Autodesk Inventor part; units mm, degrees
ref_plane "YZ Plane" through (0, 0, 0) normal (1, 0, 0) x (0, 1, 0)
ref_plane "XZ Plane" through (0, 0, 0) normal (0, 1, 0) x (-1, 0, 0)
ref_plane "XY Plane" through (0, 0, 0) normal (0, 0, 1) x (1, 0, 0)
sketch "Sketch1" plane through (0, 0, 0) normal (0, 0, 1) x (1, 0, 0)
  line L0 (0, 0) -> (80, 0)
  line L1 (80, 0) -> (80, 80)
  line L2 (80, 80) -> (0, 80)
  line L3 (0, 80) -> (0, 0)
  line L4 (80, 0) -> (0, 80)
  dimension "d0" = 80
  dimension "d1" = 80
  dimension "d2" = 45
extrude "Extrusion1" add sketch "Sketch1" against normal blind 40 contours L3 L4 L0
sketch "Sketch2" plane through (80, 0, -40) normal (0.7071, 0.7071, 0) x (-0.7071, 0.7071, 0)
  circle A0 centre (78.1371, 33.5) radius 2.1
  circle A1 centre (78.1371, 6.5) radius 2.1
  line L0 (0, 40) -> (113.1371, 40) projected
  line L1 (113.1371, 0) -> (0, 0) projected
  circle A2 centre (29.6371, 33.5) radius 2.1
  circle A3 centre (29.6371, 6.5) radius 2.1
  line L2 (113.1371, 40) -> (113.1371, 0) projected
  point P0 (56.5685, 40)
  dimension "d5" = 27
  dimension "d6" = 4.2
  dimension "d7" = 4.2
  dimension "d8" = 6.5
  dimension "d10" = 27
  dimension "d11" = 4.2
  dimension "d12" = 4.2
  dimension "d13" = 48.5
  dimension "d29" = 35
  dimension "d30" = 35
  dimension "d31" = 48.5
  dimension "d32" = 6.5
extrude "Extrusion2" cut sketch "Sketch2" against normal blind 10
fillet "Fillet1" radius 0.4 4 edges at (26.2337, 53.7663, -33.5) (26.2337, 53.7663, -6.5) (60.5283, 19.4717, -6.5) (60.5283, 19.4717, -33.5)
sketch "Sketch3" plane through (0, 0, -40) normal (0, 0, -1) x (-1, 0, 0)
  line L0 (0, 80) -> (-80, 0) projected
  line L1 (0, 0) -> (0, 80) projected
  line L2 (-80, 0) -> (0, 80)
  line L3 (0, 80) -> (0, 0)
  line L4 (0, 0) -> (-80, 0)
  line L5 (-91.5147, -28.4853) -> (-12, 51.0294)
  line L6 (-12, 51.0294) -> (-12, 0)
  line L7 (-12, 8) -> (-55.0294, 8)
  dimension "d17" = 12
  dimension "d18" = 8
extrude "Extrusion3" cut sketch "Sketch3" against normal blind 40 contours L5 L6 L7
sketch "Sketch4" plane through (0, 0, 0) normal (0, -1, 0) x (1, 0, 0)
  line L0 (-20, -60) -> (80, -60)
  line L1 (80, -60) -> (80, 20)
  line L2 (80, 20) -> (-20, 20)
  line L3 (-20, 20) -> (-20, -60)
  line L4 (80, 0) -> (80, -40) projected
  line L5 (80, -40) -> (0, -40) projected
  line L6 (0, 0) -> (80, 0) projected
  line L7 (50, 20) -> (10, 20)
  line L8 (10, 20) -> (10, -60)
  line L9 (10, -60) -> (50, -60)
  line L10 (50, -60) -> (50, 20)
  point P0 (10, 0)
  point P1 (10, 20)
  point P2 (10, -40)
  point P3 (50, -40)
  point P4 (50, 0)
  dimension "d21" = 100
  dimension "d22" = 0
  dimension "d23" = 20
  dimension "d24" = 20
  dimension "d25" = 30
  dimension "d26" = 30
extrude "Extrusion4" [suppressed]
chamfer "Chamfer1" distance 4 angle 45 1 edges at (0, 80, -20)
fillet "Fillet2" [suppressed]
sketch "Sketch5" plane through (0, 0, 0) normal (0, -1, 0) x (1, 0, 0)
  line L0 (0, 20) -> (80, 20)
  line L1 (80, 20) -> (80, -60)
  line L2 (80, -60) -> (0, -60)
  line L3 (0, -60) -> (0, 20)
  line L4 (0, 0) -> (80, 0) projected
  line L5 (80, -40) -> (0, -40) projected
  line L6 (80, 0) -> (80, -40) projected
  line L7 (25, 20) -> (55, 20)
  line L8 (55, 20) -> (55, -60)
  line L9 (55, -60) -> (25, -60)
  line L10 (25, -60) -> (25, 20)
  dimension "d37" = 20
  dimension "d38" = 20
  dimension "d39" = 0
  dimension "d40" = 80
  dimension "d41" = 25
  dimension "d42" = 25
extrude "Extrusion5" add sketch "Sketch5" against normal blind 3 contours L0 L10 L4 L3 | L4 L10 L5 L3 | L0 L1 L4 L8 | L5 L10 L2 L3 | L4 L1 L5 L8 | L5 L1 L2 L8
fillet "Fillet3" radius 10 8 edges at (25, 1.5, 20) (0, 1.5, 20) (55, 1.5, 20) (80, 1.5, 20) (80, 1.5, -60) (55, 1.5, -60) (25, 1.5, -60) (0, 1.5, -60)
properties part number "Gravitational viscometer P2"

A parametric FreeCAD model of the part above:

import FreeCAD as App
import Part
import Sketcher
from FreeCAD import Vector
Q = App.Units.Quantity


def edges_at(feature, points):
    """Names of the edges that pass closest to the given points."""
    edges = feature.Shape.Edges
    near = lambda p: min(range(len(edges)), key=lambda i: edges[i].distToShape(Part.Vertex(*p))[0])
    return sorted({f"Edge{near(p) + 1}" for p in points})


def add_polygon(sketch, points):
    """Adds a closed chain of lines whose ends are joined by coincident constraints."""
    first, n = sketch.GeometryCount, len(points)
    for a, b in zip(points, points[1:] + points[:1]):
        sketch.addGeometry(Part.LineSegment(App.Vector(*a, 0), App.Vector(*b, 0)), False)
    for i in range(n):
        sketch.addConstraint(Sketcher.Constraint("Coincident", first + i, 2, first + (i + 1) % n, 1))

doc = App.newDocument("Part")
params = doc.addObject("Spreadsheet::Sheet", "Params")
for row, (alias, value) in enumerate([
    ("sketch1_width", "80 mm"),
    ("pad1_length", "40 mm"),
    ("sketch2_diameter", "4.2 mm"),
    ("pocket1_length", "10 mm"),
    ("fillet_radius", "0.4 mm"),
    ("pocket2_length", "40 mm"),
    ("chamfer_size", "4 mm"),
    ("sketch4_width", "25 mm"),
    ("sketch4_height", "80 mm"),
    ("pad2_length", "3 mm"),
    ("fillet2_radius", "10 mm"),
], start=1):
    params.set(f"A{row}", alias)
    params.set(f"B{row}", "=" + value)
    params.setAlias(f"B{row}", alias)

body = doc.addObject("PartDesign::Body", "Body")

# Sketch on XY plane
sketch1 = body.newObject("Sketcher::SketchObject", "Sketch")
sketch1.AttachmentSupport = (doc.getObject("XY_Plane"), [""])
sketch1.MapMode = "FlatFace"
add_polygon(sketch1, [(0, 80), (0, 0), (80, 0)])  # lines 0-2
sketch1.addConstraint([
    Sketcher.Constraint("Vertical", 0),
    Sketcher.Constraint("Horizontal", 1),
    Sketcher.Constraint("Coincident", 0, 2, -1, 1),
    Sketcher.Constraint("Equal", 1, 0),
    Sketcher.Constraint("DistanceX", 1, 1, 1, 2, Q("80 mm")),
])
sketch1.setExpression("Constraints[7]", "Params.sketch1_width")
pad1 = body.newObject("PartDesign::Pad", "Pad")
pad1.Profile = sketch1
pad1.setExpression("Length", "Params.pad1_length")
pad1.Reversed = True

# Sketch on an angled plane
sketch2 = body.newObject("Sketcher::SketchObject", "Sketch001")
sketch2.Placement = App.Placement(Vector(80, 0, -40), App.Rotation(Vector(-0.707106781, 0.707106781, 0), Vector(0, 0, 0.999999999), Vector(0.707106781, 0.707106781, 0), "ZXY"))
sketch2.addGeometry([
    Part.Circle(Vector(78.1371, 33.5, 0), Vector(0, 0, 1), 2.1),
    Part.Circle(Vector(78.1371, 6.5, 0), Vector(0, 0, 1), 2.1),
    Part.Circle(Vector(29.6371, 33.5, 0), Vector(0, 0, 1), 2.1),
    Part.Circle(Vector(29.6371, 6.5, 0), Vector(0, 0, 1), 2.1),
], False)
sketch2.addConstraint([
    Sketcher.Constraint("Equal", 0, 1),
    Sketcher.Constraint("Equal", 1, 2),
    Sketcher.Constraint("Equal", 2, 3),
    Sketcher.Constraint("Horizontal", 0, 3, 2, 3),
    Sketcher.Constraint("Horizontal", 1, 3, 3, 3),
    Sketcher.Constraint("Vertical", 0, 3, 1, 3),
    Sketcher.Constraint("Vertical", 2, 3, 3, 3),
    Sketcher.Constraint("Diameter", 0, Q("4.2 mm")),
    Sketcher.Constraint("DistanceY", 1, 3, 0, 3, Q("27 mm")),
    Sketcher.Constraint("DistanceY", -1, 1, 1, 3, Q("6.5 mm")),
    Sketcher.Constraint("DistanceX", 2, 3, 0, 3, Q("48.5 mm")),
    Sketcher.Constraint("DistanceX", -1, 1, 0, 3, Q("78.137 mm")),
])
sketch2.setExpression("Constraints[7]", "Params.sketch2_diameter")
pocket1 = body.newObject("PartDesign::Pocket", "Pocket")
pocket1.Profile = sketch2
pocket1.setExpression("Length", "Params.pocket1_length")
doc.recompute()

fillet = body.newObject("PartDesign::Fillet", "Fillet")
fillet.Base = (pocket1, edges_at(pocket1, [
    (26.234, 53.766, -33.5),
    (26.234, 53.766, -6.5),
    (60.528, 19.472, -6.5),
    (60.528, 19.472, -33.5),
]))
fillet.setExpression("Radius", "Params.fillet_radius")

# Sketch on XY plane
sketch3 = body.newObject("Sketcher::SketchObject", "Sketch002")
sketch3.AttachmentSupport = (doc.getObject("XY_Plane"), [""])
sketch3.MapMode = "FlatFace"
sketch3.AttachmentOffset = App.Placement(Vector(0, 0, -40), App.Rotation())
add_polygon(sketch3, [(12, 51.0294), (55.0294, 8), (12, 8)])  # lines 0-2
sketch3.addConstraint([
    Sketcher.Constraint("Horizontal", 1),
    Sketcher.Constraint("Vertical", 2),
    Sketcher.Constraint("Equal", 1, 2),
    Sketcher.Constraint("DistanceY", -1, 1, 0, 2, Q("8 mm")),
    Sketcher.Constraint("DistanceX", -1, 1, 1, 2, Q("12 mm")),
    Sketcher.Constraint("DistanceX", 1, 2, 1, 1, Q("43.0294 mm")),
])
pocket2 = body.newObject("PartDesign::Pocket", "Pocket001")
pocket2.Profile = sketch3
pocket2.setExpression("Length", "Params.pocket2_length")
pocket2.Reversed = True
doc.recompute()

chamfer = body.newObject("PartDesign::Chamfer", "Chamfer")
chamfer.Base = (pocket2, edges_at(pocket2, [(0, 80, -20)]))
chamfer.setExpression("Size", "Params.chamfer_size")

# Sketch on XZ plane
sketch4 = body.newObject("Sketcher::SketchObject", "Sketch003")
sketch4.AttachmentSupport = (doc.getObject("XZ_Plane"), [""])
sketch4.MapMode = "FlatFace"
add_polygon(sketch4, [(25, 20), (0, 20), (0, -60), (25, -60)])  # lines 0-3
add_polygon(sketch4, [(80, 20), (55, 20), (55, -60), (80, -60)])  # lines 4-7
sketch4.addConstraint([
    Sketcher.Constraint("Horizontal", 0),
    Sketcher.Constraint("Vertical", 1),
    Sketcher.Constraint("Horizontal", 2),
    Sketcher.Constraint("Vertical", 3),
    Sketcher.Constraint("Horizontal", 4),
    Sketcher.Constraint("Vertical", 5),
    Sketcher.Constraint("Horizontal", 6),
    Sketcher.Constraint("Vertical", 7),
    Sketcher.Constraint("PointOnObject", 0, 2, -2),
    Sketcher.Constraint("Horizontal", 3, 2, 4, 2),
    Sketcher.Constraint("Horizontal", 2, 2, 5, 2),
    Sketcher.Constraint("Equal", 2, 4),
    Sketcher.Constraint("DistanceX", 0, 2, 0, 1, Q("25 mm")),
    Sketcher.Constraint("DistanceY", 1, 2, 1, 1, Q("80 mm")),
    Sketcher.Constraint("DistanceY", -1, 1, 0, 2, Q("20 mm")),
    Sketcher.Constraint("DistanceX", -1, 1, 6, 2, Q("80 mm")),
])
sketch4.setExpression("Constraints[20]", "Params.sketch4_width")
sketch4.setExpression("Constraints[21]", "Params.sketch4_height")
pad2 = body.newObject("PartDesign::Pad", "Pad001")
pad2.Profile = sketch4
pad2.setExpression("Length", "Params.pad2_length")
pad2.Reversed = True
doc.recompute()

fillet2 = body.newObject("PartDesign::Fillet", "Fillet001")
fillet2.Base = (pad2, edges_at(pad2, [
    (25, 1.5, 20),
    (0, 1.5, 20),
    (55, 1.5, 20),
    (80, 1.5, 20),
    (80, 1.5, -60),
    (55, 1.5, -60),
    (25, 1.5, -60),
    (0, 1.5, -60),
]))
fillet2.setExpression("Radius", "Params.fillet2_radius")

doc.recompute()
